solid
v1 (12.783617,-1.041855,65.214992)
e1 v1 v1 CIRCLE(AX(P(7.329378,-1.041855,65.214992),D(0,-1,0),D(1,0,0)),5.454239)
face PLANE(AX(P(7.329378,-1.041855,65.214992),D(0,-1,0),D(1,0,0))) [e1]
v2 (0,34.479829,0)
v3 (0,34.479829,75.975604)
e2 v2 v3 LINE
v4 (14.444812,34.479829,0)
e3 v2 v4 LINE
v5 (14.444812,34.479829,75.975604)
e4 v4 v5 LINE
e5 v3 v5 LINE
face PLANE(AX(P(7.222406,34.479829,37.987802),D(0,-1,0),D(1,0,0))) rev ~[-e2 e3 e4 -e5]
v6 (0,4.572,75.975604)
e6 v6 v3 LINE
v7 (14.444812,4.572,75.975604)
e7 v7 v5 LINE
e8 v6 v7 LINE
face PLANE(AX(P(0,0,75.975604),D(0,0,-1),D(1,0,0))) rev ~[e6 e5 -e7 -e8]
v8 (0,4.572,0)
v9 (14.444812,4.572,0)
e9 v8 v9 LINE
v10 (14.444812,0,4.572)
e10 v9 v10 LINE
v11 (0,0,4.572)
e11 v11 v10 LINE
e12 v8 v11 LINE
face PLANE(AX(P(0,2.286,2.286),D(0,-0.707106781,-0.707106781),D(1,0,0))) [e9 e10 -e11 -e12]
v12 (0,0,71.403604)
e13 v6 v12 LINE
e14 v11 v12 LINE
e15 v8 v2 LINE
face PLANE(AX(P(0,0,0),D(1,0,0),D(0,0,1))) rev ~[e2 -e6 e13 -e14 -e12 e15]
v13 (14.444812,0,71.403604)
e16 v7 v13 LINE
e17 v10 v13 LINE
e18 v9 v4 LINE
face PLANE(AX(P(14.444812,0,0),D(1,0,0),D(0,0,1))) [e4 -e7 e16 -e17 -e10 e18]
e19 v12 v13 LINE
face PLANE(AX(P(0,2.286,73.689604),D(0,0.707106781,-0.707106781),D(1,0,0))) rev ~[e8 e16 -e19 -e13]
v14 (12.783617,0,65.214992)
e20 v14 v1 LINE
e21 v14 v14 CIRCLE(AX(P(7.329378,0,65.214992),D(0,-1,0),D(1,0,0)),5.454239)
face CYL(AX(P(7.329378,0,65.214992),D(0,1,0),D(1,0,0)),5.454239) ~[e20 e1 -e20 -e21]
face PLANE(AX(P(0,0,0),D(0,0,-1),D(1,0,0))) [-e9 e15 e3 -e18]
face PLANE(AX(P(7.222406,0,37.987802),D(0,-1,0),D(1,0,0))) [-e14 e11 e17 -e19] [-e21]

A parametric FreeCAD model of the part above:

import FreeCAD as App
import Part
import Sketcher
Q = App.Units.Quantity


def edges_at(feature, points):
    """Names of the edges that pass closest to the given points."""
    edges = feature.Shape.Edges
    near = lambda p: min(range(len(edges)), key=lambda i: edges[i].distToShape(Part.Vertex(*p))[0])
    return sorted({f"Edge{near(p) + 1}" for p in points})

doc = App.newDocument("Part")
body = doc.addObject("PartDesign::Body", "Body")

# Sketch on XZ plane
sketch1 = body.newObject("Sketcher::SketchObject", "Sketch")
sketch1.AttachmentSupport = (doc.getObject("XZ_Plane"), [""])
sketch1.MapMode = "FlatFace"
sketch1.addGeometry([
    Part.LineSegment(App.Vector(0, 76, 0), App.Vector(0, 0, 0)),
    Part.LineSegment(App.Vector(0, 0, 0), App.Vector(14, 0, 0)),
    Part.LineSegment(App.Vector(14, 0, 0), App.Vector(14, 76, 0)),
    Part.LineSegment(App.Vector(14, 76, 0), App.Vector(0, 76, 0)),
], False)
sketch1.addConstraint([
    Sketcher.Constraint("Coincident", 0, 2, 1, 1),
    Sketcher.Constraint("Coincident", 1, 2, 2, 1),
    Sketcher.Constraint("Coincident", 2, 2, 3, 1),
    Sketcher.Constraint("Coincident", 3, 2, 0, 1),
    Sketcher.Constraint("Vertical", 0),
    Sketcher.Constraint("Horizontal", 1),
    Sketcher.Constraint("Vertical", 2),
    Sketcher.Constraint("Horizontal", 3),
    Sketcher.Constraint("Coincident", 0, 2, -1, 1),
    Sketcher.Constraint("DistanceX", 1, 1, 1, 2, 14.444813),
    Sketcher.Constraint("DistanceY", 0, 2, 0, 1, 75.975604),
])
pad1 = body.newObject("PartDesign::Pad", "Pad")
pad1.Profile = sketch1
pad1.Length = 34.479829
pad1.Reversed = True

# Sketch on XZ plane
sketch2 = body.newObject("Sketcher::SketchObject", "Sketch001")
sketch2.AttachmentSupport = (doc.getObject("XZ_Plane"), [""])
sketch2.MapMode = "FlatFace"
sketch2.addGeometry(Part.Circle(App.Vector(7, 65, 0), App.Vector(0, 0, 1), 5), False)
sketch2.addConstraint([
    Sketcher.Constraint("Diameter", 0, 10.908478),
    Sketcher.Constraint("DistanceX", -1, 1, 0, 3, 7.329378),
    Sketcher.Constraint("DistanceY", -1, 1, 0, 3, 65.214992),
])
pad2 = body.newObject("PartDesign::Pad", "Pad001")
pad2.Profile = sketch2
pad2.Length = 1.041855
doc.recompute()

chamfer = body.newObject("PartDesign::Chamfer", "Chamfer")
chamfer.Base = (pad2, edges_at(pad2, [(7.222, 0, 75.976), (7.222, 0, 0)]))
chamfer.Size = Q("0.18 in")

doc.recompute()
